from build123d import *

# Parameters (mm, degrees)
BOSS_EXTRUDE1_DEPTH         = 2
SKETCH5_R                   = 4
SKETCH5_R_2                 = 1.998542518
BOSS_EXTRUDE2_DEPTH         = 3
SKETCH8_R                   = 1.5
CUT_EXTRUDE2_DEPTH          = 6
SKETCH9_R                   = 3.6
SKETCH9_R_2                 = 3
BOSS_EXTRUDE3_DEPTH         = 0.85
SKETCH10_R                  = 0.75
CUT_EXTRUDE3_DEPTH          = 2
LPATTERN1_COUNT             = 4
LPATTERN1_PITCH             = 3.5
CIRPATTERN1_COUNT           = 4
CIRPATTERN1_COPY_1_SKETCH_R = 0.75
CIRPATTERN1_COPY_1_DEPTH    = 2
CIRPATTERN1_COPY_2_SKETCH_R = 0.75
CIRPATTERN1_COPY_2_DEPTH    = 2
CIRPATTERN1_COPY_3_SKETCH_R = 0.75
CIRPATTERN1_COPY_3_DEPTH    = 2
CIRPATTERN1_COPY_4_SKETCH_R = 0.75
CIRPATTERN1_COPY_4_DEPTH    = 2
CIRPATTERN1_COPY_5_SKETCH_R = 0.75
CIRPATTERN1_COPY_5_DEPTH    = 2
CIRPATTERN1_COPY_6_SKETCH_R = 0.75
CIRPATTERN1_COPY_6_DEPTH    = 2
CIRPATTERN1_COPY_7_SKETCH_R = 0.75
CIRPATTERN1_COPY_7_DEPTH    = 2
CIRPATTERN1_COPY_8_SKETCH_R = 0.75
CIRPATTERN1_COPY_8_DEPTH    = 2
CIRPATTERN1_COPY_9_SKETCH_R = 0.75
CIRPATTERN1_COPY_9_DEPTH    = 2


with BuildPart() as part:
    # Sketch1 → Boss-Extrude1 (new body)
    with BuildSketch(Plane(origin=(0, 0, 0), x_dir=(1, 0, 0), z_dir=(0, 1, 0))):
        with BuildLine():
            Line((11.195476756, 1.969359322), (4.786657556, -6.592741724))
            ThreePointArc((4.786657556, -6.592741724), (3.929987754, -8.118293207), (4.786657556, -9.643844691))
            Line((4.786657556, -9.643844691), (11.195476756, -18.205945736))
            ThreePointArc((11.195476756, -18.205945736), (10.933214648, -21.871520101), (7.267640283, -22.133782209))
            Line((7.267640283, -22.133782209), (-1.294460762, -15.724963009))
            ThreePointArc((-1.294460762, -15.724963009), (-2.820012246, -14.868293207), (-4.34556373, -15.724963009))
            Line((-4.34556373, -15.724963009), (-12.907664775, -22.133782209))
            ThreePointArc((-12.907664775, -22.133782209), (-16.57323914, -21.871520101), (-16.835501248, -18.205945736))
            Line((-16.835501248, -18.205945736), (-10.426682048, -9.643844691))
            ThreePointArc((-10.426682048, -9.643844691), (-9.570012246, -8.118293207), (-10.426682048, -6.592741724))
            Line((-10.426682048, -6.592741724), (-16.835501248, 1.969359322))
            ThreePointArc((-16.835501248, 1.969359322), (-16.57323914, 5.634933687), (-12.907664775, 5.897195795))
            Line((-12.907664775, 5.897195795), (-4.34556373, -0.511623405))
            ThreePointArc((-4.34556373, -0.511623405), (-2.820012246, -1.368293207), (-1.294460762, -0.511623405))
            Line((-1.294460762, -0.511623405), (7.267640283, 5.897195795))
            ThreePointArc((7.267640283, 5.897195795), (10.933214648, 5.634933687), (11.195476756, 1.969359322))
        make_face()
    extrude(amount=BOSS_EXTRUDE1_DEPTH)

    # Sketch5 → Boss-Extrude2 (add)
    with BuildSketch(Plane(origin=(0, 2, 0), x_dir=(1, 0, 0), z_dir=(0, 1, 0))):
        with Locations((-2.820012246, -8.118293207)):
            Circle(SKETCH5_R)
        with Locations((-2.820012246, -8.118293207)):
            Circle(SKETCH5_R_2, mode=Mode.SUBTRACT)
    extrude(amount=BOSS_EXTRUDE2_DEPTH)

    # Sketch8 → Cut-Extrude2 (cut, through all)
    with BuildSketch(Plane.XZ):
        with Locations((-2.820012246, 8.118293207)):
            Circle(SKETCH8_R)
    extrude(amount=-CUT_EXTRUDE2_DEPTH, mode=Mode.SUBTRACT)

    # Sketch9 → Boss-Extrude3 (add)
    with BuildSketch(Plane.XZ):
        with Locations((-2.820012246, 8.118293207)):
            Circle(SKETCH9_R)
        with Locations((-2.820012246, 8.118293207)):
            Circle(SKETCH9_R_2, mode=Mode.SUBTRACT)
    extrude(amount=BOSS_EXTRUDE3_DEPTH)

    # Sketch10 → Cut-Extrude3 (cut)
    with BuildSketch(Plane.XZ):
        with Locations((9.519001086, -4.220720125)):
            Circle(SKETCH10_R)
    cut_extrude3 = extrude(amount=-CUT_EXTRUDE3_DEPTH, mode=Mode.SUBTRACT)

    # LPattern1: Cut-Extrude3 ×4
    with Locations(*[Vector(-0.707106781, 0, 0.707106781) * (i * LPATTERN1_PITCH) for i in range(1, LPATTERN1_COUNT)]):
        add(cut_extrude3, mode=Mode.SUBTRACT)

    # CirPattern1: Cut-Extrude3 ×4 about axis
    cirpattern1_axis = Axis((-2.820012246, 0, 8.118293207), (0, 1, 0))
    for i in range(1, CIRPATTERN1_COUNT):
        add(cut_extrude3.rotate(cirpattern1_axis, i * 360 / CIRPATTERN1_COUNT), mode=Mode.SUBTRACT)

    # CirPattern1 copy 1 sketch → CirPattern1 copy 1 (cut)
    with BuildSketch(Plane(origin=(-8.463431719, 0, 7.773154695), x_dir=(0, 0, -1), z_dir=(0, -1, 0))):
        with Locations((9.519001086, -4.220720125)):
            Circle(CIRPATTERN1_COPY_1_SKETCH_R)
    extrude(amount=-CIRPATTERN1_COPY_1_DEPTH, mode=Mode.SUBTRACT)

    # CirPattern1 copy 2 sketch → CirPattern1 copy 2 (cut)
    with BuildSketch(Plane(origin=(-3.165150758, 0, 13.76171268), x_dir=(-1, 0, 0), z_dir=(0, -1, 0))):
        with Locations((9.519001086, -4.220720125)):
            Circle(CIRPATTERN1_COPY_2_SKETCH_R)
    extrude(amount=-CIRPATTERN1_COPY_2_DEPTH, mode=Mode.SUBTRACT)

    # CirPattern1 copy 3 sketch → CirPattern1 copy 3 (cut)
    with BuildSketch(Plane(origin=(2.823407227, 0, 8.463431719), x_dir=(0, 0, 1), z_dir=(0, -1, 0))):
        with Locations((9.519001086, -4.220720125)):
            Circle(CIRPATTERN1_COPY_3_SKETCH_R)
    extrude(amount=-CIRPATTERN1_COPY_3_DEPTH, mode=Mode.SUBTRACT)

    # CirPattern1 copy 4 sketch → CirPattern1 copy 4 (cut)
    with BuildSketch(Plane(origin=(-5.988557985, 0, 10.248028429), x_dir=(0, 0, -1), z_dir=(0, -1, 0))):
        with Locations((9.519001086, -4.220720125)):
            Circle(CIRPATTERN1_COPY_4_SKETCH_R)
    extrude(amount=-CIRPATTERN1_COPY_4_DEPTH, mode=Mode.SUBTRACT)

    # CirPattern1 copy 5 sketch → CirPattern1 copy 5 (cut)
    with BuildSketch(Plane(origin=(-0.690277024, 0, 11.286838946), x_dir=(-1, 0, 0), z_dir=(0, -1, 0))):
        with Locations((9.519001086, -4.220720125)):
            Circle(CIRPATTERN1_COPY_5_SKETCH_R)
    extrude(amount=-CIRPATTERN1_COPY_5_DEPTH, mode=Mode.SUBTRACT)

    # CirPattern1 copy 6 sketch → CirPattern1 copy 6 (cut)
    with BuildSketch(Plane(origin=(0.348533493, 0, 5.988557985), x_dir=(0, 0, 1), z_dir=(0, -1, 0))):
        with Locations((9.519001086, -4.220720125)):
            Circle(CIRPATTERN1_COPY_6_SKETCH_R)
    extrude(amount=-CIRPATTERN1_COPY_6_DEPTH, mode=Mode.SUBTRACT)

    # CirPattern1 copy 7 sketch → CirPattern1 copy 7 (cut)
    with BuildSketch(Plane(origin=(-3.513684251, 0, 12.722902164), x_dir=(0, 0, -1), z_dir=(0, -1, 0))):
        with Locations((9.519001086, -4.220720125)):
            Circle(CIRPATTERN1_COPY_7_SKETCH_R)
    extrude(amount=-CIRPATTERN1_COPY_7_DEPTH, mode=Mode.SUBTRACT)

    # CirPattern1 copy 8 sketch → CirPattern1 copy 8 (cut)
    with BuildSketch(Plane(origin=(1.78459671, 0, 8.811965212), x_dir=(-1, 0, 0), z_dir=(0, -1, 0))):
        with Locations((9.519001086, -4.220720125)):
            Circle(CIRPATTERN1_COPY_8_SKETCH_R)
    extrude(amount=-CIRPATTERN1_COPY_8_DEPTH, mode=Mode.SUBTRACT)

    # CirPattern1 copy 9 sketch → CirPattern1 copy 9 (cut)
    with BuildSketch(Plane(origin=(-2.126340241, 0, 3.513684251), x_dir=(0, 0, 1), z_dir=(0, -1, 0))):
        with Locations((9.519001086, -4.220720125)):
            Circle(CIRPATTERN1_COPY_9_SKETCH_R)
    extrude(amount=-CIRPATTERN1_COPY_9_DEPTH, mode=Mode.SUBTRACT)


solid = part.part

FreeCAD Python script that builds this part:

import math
import FreeCAD as App
import Part
import Sketcher

V = App.Vector
Q = App.Units.Quantity

doc = App.newDocument("Part")
body = doc.addObject("PartDesign::Body", "Body")

sketch1 = body.newObject("Sketcher::SketchObject", "Sketch")
sketch1.AttachmentSupport = (doc.getObject("XZ_Plane"), [""])
sketch1.MapMode = "FlatFace"
sketch1.addGeometry([
    Part.LineSegment(V(4.786658, 6.592742, 0), V(11.195477, -1.969359, 0)),
    Part.ArcOfCircle(Part.Circle(V(8.949086, -3.650805, 0), V(0, 0, 1), 2.805981), math.radians(-126.815225), math.radians(36.815225)),
    Part.LineSegment(V(7.26764, -5.897196, 0), V(-1.294461, 0.511623, 0)),
    Part.ArcOfCircle(Part.Circle(V(-2.820012, -0.418387, 0), V(0, 0, 1), 1.786681), math.radians(31.36743), math.radians(148.63257)),
    Part.LineSegment(V(-4.345564, 0.511623, 0), V(-12.907665, -5.897196, 0)),
    Part.ArcOfCircle(Part.Circle(V(-14.589111, -3.650805, 0), V(0, 0, 1), 2.805981), math.radians(143.184775), math.radians(306.815225)),
    Part.LineSegment(V(-16.835501, -1.969359, 0), V(-10.426682, 6.592742, 0)),
    Part.ArcOfCircle(Part.Circle(V(-11.356693, 8.118293, 0), V(0, 0, 1), 1.786681), math.radians(-58.63257), math.radians(58.63257)),
    Part.LineSegment(V(-10.426682, 9.643845, 0), V(-16.835501, 18.205946, 0)),
    Part.ArcOfCircle(Part.Circle(V(-14.589111, 19.887392, 0), V(0, 0, 1), 2.805981), math.radians(53.184775), math.radians(216.815225)),
    Part.LineSegment(V(-12.907665, 22.133782, 0), V(-4.345564, 15.724963, 0)),
    Part.ArcOfCircle(Part.Circle(V(-2.820012, 16.654974, 0), V(0, 0, 1), 1.786681), math.radians(-148.63257), math.radians(-31.36743)),
    Part.LineSegment(V(-1.294461, 15.724963, 0), V(7.26764, 22.133782, 0)),
    Part.ArcOfCircle(Part.Circle(V(8.949086, 19.887392, 0), V(0, 0, 1), 2.805981), math.radians(-36.815225), math.radians(126.815225)),
    Part.LineSegment(V(11.195477, 18.205946, 0), V(4.786658, 9.643845, 0)),
    Part.ArcOfCircle(Part.Circle(V(5.716668, 8.118293, 0), V(0, 0, 1), 1.786681), math.radians(121.36743), math.radians(238.63257)),
], False)
sketch1.addConstraint([
    Sketcher.Constraint("Tangent", 0, 2, 1, 2),
    Sketcher.Constraint("Tangent", 1, 1, 2, 1),
    Sketcher.Constraint("Coincident", 2, 2, 3, 1),
    Sketcher.Constraint("Coincident", 3, 2, 4, 1),
    Sketcher.Constraint("Tangent", 4, 2, 5, 2),
    Sketcher.Constraint("Tangent", 5, 1, 6, 1),
    Sketcher.Constraint("Coincident", 6, 2, 7, 1),
    Sketcher.Constraint("Coincident", 7, 2, 8, 1),
    Sketcher.Constraint("Tangent", 8, 2, 9, 2),
    Sketcher.Constraint("Tangent", 9, 1, 10, 1),
    Sketcher.Constraint("Coincident", 10, 2, 11, 1),
    Sketcher.Constraint("Coincident", 11, 2, 12, 1),
    Sketcher.Constraint("Tangent", 12, 2, 13, 2),
    Sketcher.Constraint("Tangent", 13, 1, 14, 1),
    Sketcher.Constraint("Coincident", 14, 2, 15, 1),
    Sketcher.Constraint("Coincident", 15, 2, 0, 1),
    Sketcher.Constraint("Equal", 1, 5),
    Sketcher.Constraint("Equal", 3, 7),
    Sketcher.Constraint("Equal", 5, 9),
    Sketcher.Constraint("Equal", 7, 11),
    Sketcher.Constraint("Equal", 9, 13),
    Sketcher.Constraint("Equal", 11, 15),
    Sketcher.Constraint("Perpendicular", 0, 4),
    Sketcher.Constraint("Perpendicular", 2, 6),
    Sketcher.Constraint("Perpendicular", 4, 8),
    Sketcher.Constraint("Perpendicular", 6, 10),
    Sketcher.Constraint("Perpendicular", 8, 12),
    Sketcher.Constraint("Perpendicular", 10, 14),
    Sketcher.Constraint("Horizontal", 1, 3, 5, 3),
    Sketcher.Constraint("Horizontal", 9, 3, 13, 3),
    Sketcher.Constraint("Horizontal", 7, 3, 15, 3),
    Sketcher.Constraint("Horizontal", 2, 2, 3, 2),
    Sketcher.Constraint("Horizontal", 1, 1, 4, 2),
    Sketcher.Constraint("Horizontal", 10, 2, 11, 2),
    Sketcher.Constraint("Horizontal", 7, 2, 14, 2),
    Sketcher.Constraint("Horizontal", 6, 2, 15, 2),
    Sketcher.Constraint("Vertical", 5, 3, 9, 3),
    Sketcher.Constraint("Vertical", 6, 2, 7, 2),
    Sketcher.Constraint("Vertical", 3, 2, 10, 2),
    Sketcher.Constraint("Equal", 0, 2),
    Sketcher.Constraint("Radius", 1, Q("2.805981 mm")),
    Sketcher.Constraint("Radius", 3, Q("1.786681 mm")),
    Sketcher.Constraint("DistanceX", 5, 1, -1, 1, Q("16.835501 mm")),
    Sketcher.Constraint("DistanceX", 3, 3, 1, 3, Q("11.769099 mm")),
    Sketcher.Constraint("DistanceY", 5, 3, 7, 3, Q("11.769099 mm")),
    Sketcher.Constraint("DistanceX", 2, 2, 1, 1, Q("8.562101 mm")),
    Sketcher.Constraint("DistanceX", 5, 3, -1, 1, Q("14.589111 mm")),
    Sketcher.Constraint("DistanceY", -1, 1, 9, 3, Q("19.887392 mm")),
])
pad1 = body.newObject("PartDesign::Pad", "Pad")
pad1.Profile = sketch1
pad1.Length = 2
pad1.Reversed = True

sketch2 = body.newObject("Sketcher::SketchObject", "Sketch001")
sketch2.AttachmentSupport = (doc.getObject("XZ_Plane"), [""])
sketch2.MapMode = "FlatFace"
sketch2.AttachmentOffset = App.Placement(V(0, 0, -2), App.Rotation())
sketch2.addGeometry([
    Part.Circle(V(-2.820012, 8.118293, 0), V(0, 0, 1), 4),
    Part.Circle(V(-2.820012, 8.118293, 0), V(0, 0, 1), 1.998543),
], False)
sketch2.addConstraint([
    Sketcher.Constraint("Coincident", 1, 3, 0, 3),
    Sketcher.Constraint("Diameter", 0, Q("8 mm")),
    Sketcher.Constraint("Diameter", 1, Q("3.997085 mm")),
    Sketcher.Constraint("DistanceX", 0, 3, -1, 1, Q("2.820012 mm")),
    Sketcher.Constraint("DistanceY", -1, 1, 0, 3, Q("8.118293 mm")),
])
pad2 = body.newObject("PartDesign::Pad", "Pad001")
pad2.Profile = sketch2
pad2.Length = 3
pad2.Reversed = True

sketch3 = body.newObject("Sketcher::SketchObject", "Sketch002")
sketch3.AttachmentSupport = (doc.getObject("XZ_Plane"), [""])
sketch3.MapMode = "FlatFace"
sketch3.addGeometry(Part.Circle(V(-2.820012, 8.118293, 0), V(0, 0, 1), 1.5), False)
sketch3.addConstraint([
    Sketcher.Constraint("Diameter", 0, Q("3 mm")),
    Sketcher.Constraint("DistanceX", 0, 3, -1, 1, Q("2.820012 mm")),
    Sketcher.Constraint("DistanceY", -1, 1, 0, 3, Q("8.118293 mm")),
])
pocket1 = body.newObject("PartDesign::Pocket", "Pocket")
pocket1.Profile = sketch3
pocket1.Type = "ThroughAll"

sketch4 = body.newObject("Sketcher::SketchObject", "Sketch003")
sketch4.AttachmentSupport = (doc.getObject("XZ_Plane"), [""])
sketch4.MapMode = "FlatFace"
sketch4.addGeometry([
    Part.Circle(V(-2.820012, 8.118293, 0), V(0, 0, 1), 3.6),
    Part.Circle(V(-2.820012, 8.118293, 0), V(0, 0, 1), 3),
], False)
sketch4.addConstraint([
    Sketcher.Constraint("Coincident", 1, 3, 0, 3),
    Sketcher.Constraint("Diameter", 1, Q("6 mm")),
    Sketcher.Constraint("Diameter", 0, Q("7.2 mm")),
    Sketcher.Constraint("DistanceX", 0, 3, -1, 1, Q("2.820012 mm")),
    Sketcher.Constraint("DistanceY", -1, 1, 0, 3, Q("8.118293 mm")),
])
pad3 = body.newObject("PartDesign::Pad", "Pad002")
pad3.Profile = sketch4
pad3.Length = 0.85

sketch5 = body.newObject("Sketcher::SketchObject", "Sketch004")
sketch5.AttachmentSupport = (doc.getObject("XZ_Plane"), [""])
sketch5.MapMode = "FlatFace"
sketch5.addGeometry(Part.Circle(V(9.519001, -4.22072, 0), V(0, 0, 1), 0.75), False)
sketch5.addConstraint([
    Sketcher.Constraint("Diameter", 0, Q("1.5 mm")),
    Sketcher.Constraint("DistanceX", -1, 1, 0, 3, Q("9.519001 mm")),
    Sketcher.Constraint("DistanceY", 0, 3, -1, 1, Q("4.22072 mm")),
])
pocket2 = body.newObject("PartDesign::Pocket", "Pocket001")
pocket2.Profile = sketch5
pocket2.Length = 2
doc.recompute()

datumline = body.newObject("PartDesign::Line", "DatumLine")
datumline.Placement = App.Placement(V(0, 0, 0), App.Rotation(V(0, 0, 1), V(-0.707106781, 0, 0.707106781)))
linearpattern = body.newObject("PartDesign::LinearPattern", "LinearPattern")
linearpattern.Originals = [pocket2]
linearpattern.Direction = (datumline, [""])
linearpattern.Mode = "offset"
linearpattern.Offset = 3.5
linearpattern.Occurrences = 4
body.Tip = linearpattern
doc.recompute()

datumline2 = body.newObject("PartDesign::Line", "DatumLine001")
datumline2.Placement = App.Placement(V(-2.820012, 0, 8.118293), App.Rotation(V(0, 0, 1), V(0, 1, 0)))
polarpattern = body.newObject("PartDesign::PolarPattern", "PolarPattern")
polarpattern.Originals = [pocket2]
polarpattern.Axis = (datumline2, [""])
polarpattern.Angle = 360
polarpattern.Occurrences = 4
body.Tip = polarpattern

sketch6 = body.newObject("Sketcher::SketchObject", "Sketch005")
sketch6.AttachmentSupport = (doc.getObject("XZ_Plane"), [""])
sketch6.MapMode = "FlatFace"
sketch6.addGeometry(Part.Circle(V(-12.684152, -1.745846, 0), V(0, 0, 1), 0.75), False)
sketch6.addConstraint([
    Sketcher.Constraint("Diameter", 0, Q("1.5 mm")),
    Sketcher.Constraint("DistanceX", 0, 3, -1, 1, Q("12.684152 mm")),
    Sketcher.Constraint("DistanceY", 0, 3, -1, 1, Q("1.745846 mm")),
])
pocket3 = body.newObject("PartDesign::Pocket", "Pocket002")
pocket3.Profile = sketch6
pocket3.Length = 2

sketch7 = body.newObject("Sketcher::SketchObject", "Sketch006")
sketch7.AttachmentSupport = (doc.getObject("XZ_Plane"), [""])
sketch7.MapMode = "FlatFace"
sketch7.addGeometry(Part.Circle(V(-12.684152, 17.982433, 0), V(0, 0, 1), 0.75), False)
sketch7.addConstraint([
    Sketcher.Constraint("Diameter", 0, Q("1.5 mm")),
    Sketcher.Constraint("DistanceX", 0, 3, -1, 1, Q("12.684152 mm")),
    Sketcher.Constraint("DistanceY", -1, 1, 0, 3, Q("17.982433 mm")),
])
pocket4 = body.newObject("PartDesign::Pocket", "Pocket003")
pocket4.Profile = sketch7
pocket4.Length = 2

sketch8 = body.newObject("Sketcher::SketchObject", "Sketch007")
sketch8.AttachmentSupport = (doc.getObject("XZ_Plane"), [""])
sketch8.MapMode = "FlatFace"
sketch8.addGeometry(Part.Circle(V(7.044127, 17.982433, 0), V(0, 0, 1), 0.75), False)
sketch8.addConstraint([
    Sketcher.Constraint("Diameter", 0, Q("1.5 mm")),
    Sketcher.Constraint("DistanceX", -1, 1, 0, 3, Q("7.044127 mm")),
    Sketcher.Constraint("DistanceY", -1, 1, 0, 3, Q("17.982433 mm")),
])
pocket5 = body.newObject("PartDesign::Pocket", "Pocket004")
pocket5.Profile = sketch8
pocket5.Length = 2

sketch9 = body.newObject("Sketcher::SketchObject", "Sketch008")
sketch9.AttachmentSupport = (doc.getObject("XZ_Plane"), [""])
sketch9.MapMode = "FlatFace"
sketch9.addGeometry(Part.Circle(V(-10.209278, 0.729027, 0), V(0, 0, 1), 0.75), False)
sketch9.addConstraint([
    Sketcher.Constraint("Diameter", 0, Q("1.5 mm")),
    Sketcher.Constraint("DistanceX", 0, 3, -1, 1, Q("10.209278 mm")),
    Sketcher.Constraint("DistanceY", -1, 1, 0, 3, Q("0.729027 mm")),
])
pocket6 = body.newObject("PartDesign::Pocket", "Pocket005")
pocket6.Profile = sketch9
pocket6.Length = 2

sketch10 = body.newObject("Sketcher::SketchObject", "Sketch009")
sketch10.AttachmentSupport = (doc.getObject("XZ_Plane"), [""])
sketch10.MapMode = "FlatFace"
sketch10.addGeometry(Part.Circle(V(-10.209278, 15.507559, 0), V(0, 0, 1), 0.75), False)
sketch10.addConstraint([
    Sketcher.Constraint("Diameter", 0, Q("1.5 mm")),
    Sketcher.Constraint("DistanceX", 0, 3, -1, 1, Q("10.209278 mm")),
    Sketcher.Constraint("DistanceY", -1, 1, 0, 3, Q("15.507559 mm")),
])
pocket7 = body.newObject("PartDesign::Pocket", "Pocket006")
pocket7.Profile = sketch10
pocket7.Length = 2

sketch11 = body.newObject("Sketcher::SketchObject", "Sketch010")
sketch11.AttachmentSupport = (doc.getObject("XZ_Plane"), [""])
sketch11.MapMode = "FlatFace"
sketch11.addGeometry(Part.Circle(V(4.569254, 15.507559, 0), V(0, 0, 1), 0.75), False)
sketch11.addConstraint([
    Sketcher.Constraint("Diameter", 0, Q("1.5 mm")),
    Sketcher.Constraint("DistanceY", -1, 1, 0, 3, Q("15.507559 mm")),
    Sketcher.Constraint("DistanceX", -1, 1, 0, 3, Q("4.569254 mm")),
])
pocket8 = body.newObject("PartDesign::Pocket", "Pocket007")
pocket8.Profile = sketch11
pocket8.Length = 2

sketch12 = body.newObject("Sketcher::SketchObject", "Sketch011")
sketch12.AttachmentSupport = (doc.getObject("XZ_Plane"), [""])
sketch12.MapMode = "FlatFace"
sketch12.addGeometry(Part.Circle(V(-7.734404, 3.203901, 0), V(0, 0, 1), 0.75), False)
sketch12.addConstraint([
    Sketcher.Constraint("Diameter", 0, Q("1.5 mm")),
    Sketcher.Constraint("DistanceY", -1, 1, 0, 3, Q("3.203901 mm")),
    Sketcher.Constraint("DistanceX", 0, 3, -1, 1, Q("7.734404 mm")),
])
pocket9 = body.newObject("PartDesign::Pocket", "Pocket008")
pocket9.Profile = sketch12
pocket9.Length = 2

sketch13 = body.newObject("Sketcher::SketchObject", "Sketch012")
sketch13.AttachmentSupport = (doc.getObject("XZ_Plane"), [""])
sketch13.MapMode = "FlatFace"
sketch13.addGeometry(Part.Circle(V(-7.734404, 13.032685, 0), V(0, 0, 1), 0.75), False)
sketch13.addConstraint([
    Sketcher.Constraint("Diameter", 0, Q("1.5 mm")),
    Sketcher.Constraint("DistanceX", 0, 3, -1, 1, Q("7.734404 mm")),
    Sketcher.Constraint("DistanceY", -1, 1, 0, 3, Q("13.032685 mm")),
])
pocket10 = body.newObject("PartDesign::Pocket", "Pocket009")
pocket10.Profile = sketch13
pocket10.Length = 2

sketch14 = body.newObject("Sketcher::SketchObject", "Sketch013")
sketch14.AttachmentSupport = (doc.getObject("XZ_Plane"), [""])
sketch14.MapMode = "FlatFace"
sketch14.addGeometry(Part.Circle(V(2.09438, 13.032685, 0), V(0, 0, 1), 0.75), False)
sketch14.addConstraint([
    Sketcher.Constraint("Diameter", 0, Q("1.5 mm")),
    Sketcher.Constraint("DistanceX", -1, 1, 0, 3, Q("2.09438 mm")),
    Sketcher.Constraint("DistanceY", -1, 1, 0, 3, Q("13.032685 mm")),
])
pocket11 = body.newObject("PartDesign::Pocket", "Pocket010")
pocket11.Profile = sketch14
pocket11.Length = 2

doc.recompute()
